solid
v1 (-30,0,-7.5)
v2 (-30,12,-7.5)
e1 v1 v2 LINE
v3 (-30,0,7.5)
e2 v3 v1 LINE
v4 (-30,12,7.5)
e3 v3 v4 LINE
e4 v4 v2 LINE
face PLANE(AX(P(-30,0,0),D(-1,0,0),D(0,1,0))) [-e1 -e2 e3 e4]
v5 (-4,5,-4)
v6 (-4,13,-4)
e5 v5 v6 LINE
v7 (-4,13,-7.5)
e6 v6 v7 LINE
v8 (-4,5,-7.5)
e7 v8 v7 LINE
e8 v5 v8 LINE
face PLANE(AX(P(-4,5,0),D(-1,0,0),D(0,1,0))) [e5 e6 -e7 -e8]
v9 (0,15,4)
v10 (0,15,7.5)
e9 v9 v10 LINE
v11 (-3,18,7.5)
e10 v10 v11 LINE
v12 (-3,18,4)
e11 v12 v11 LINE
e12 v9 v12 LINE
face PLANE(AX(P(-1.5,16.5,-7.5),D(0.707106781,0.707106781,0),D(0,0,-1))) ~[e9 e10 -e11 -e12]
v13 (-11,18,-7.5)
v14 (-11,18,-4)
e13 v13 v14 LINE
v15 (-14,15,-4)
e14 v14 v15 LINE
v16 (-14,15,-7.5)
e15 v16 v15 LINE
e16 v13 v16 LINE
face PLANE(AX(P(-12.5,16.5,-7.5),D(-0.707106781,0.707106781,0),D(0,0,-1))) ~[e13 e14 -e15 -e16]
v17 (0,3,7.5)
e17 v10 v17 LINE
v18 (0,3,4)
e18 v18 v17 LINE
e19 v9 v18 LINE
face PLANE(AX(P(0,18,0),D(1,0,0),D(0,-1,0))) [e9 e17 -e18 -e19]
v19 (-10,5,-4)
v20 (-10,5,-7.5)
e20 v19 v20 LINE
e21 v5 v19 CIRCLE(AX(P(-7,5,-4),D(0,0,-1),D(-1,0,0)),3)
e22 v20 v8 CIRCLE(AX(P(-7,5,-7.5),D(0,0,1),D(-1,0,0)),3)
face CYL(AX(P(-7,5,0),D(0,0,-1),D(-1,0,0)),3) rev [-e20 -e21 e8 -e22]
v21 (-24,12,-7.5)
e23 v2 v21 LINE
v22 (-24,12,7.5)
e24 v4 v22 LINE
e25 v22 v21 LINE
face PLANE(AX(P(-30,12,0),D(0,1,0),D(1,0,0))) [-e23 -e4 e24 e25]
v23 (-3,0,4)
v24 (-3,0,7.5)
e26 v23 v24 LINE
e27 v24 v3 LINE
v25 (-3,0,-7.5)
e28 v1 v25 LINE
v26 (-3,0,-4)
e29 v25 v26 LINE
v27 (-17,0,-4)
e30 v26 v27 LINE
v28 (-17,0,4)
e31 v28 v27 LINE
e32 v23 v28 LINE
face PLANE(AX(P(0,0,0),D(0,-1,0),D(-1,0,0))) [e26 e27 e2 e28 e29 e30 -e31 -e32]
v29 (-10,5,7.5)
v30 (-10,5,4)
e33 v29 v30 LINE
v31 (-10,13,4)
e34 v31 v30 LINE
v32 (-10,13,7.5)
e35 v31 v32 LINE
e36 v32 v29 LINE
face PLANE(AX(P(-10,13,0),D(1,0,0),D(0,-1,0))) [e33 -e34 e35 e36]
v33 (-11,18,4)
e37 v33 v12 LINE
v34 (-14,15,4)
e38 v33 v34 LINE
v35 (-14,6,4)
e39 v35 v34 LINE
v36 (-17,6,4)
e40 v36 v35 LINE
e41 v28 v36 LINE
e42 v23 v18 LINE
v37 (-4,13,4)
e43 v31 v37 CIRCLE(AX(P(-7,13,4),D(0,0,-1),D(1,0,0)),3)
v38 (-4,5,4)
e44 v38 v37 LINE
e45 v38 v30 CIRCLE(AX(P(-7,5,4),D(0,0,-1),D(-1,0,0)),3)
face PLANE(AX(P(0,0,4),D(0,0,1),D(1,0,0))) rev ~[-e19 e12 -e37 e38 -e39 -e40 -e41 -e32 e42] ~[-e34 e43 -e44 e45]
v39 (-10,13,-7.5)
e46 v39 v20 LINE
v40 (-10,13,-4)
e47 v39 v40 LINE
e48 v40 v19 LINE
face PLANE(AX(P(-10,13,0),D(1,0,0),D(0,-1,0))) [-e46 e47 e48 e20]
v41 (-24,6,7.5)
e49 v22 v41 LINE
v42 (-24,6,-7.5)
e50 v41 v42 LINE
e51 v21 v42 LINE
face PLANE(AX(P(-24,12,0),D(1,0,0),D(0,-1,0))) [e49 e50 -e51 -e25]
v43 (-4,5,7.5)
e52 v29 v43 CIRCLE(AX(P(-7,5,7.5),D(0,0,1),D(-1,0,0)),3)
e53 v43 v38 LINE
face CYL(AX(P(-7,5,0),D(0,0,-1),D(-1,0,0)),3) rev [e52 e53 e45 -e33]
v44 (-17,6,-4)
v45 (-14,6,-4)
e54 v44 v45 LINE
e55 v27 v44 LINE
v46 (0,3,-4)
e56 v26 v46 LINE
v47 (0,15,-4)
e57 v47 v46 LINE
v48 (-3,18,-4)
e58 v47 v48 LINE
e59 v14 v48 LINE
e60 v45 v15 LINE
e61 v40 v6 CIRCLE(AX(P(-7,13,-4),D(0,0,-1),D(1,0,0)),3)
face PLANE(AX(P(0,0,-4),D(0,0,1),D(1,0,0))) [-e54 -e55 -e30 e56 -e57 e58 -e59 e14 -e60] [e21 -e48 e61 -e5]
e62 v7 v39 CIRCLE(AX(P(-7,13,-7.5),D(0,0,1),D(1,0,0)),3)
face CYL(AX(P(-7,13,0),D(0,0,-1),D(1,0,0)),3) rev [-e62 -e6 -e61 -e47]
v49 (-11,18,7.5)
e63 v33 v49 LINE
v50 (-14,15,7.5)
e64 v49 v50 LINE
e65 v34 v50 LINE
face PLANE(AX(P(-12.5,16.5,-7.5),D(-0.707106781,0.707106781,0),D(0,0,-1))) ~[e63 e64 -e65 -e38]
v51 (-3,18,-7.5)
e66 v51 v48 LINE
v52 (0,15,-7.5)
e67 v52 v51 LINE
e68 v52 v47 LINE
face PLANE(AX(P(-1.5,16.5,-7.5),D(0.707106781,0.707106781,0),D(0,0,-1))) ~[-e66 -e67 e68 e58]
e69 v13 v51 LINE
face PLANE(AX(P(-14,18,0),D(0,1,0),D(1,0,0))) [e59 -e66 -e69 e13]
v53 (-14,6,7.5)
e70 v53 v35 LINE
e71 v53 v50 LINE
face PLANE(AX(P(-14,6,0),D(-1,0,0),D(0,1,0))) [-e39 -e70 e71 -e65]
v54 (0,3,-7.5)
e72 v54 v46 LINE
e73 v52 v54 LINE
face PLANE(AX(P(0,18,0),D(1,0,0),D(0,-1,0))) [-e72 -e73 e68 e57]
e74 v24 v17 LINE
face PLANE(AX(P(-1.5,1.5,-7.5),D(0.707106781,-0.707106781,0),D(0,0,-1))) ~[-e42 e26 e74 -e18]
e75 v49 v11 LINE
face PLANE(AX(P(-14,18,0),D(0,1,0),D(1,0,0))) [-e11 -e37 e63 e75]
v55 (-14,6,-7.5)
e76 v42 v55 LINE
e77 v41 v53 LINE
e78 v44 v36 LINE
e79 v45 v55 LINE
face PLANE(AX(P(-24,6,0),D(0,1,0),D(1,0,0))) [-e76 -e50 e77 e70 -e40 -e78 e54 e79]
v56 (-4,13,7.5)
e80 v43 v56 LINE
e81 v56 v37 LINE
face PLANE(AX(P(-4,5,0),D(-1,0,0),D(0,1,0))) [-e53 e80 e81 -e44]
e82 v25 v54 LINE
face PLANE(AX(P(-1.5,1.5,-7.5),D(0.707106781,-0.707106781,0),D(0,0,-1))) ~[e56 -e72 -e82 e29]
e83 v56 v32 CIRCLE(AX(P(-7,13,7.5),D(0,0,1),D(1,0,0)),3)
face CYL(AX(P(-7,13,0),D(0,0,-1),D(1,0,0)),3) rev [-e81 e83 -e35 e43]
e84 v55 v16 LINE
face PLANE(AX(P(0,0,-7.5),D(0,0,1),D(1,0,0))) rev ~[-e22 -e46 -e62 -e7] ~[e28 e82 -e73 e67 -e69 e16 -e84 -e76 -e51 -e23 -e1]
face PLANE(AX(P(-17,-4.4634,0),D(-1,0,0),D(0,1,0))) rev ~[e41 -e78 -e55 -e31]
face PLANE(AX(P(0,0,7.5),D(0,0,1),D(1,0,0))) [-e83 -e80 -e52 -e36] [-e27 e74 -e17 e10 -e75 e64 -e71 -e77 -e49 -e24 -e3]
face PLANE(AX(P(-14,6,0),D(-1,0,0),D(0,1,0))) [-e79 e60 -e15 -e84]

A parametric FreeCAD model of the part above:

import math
import FreeCAD as App
import Part
import Sketcher

V = App.Vector
Q = App.Units.Quantity


def edges_at(feature, points):
    """Names of the edges that pass closest to the given points."""
    edges = feature.Shape.Edges
    near = lambda p: min(range(len(edges)), key=lambda i: edges[i].distToShape(Part.Vertex(*p))[0])
    return sorted({f"Edge{near(p) + 1}" for p in points})


def add_polygon(sketch, points):
    """Adds a closed chain of lines whose ends are joined by coincident constraints."""
    first, n = sketch.GeometryCount, len(points)
    for a, b in zip(points, points[1:] + points[:1]):
        sketch.addGeometry(Part.LineSegment(App.Vector(*a, 0), App.Vector(*b, 0)), False)
    for i in range(n):
        sketch.addConstraint(Sketcher.Constraint("Coincident", first + i, 2, first + (i + 1) % n, 1))

doc = App.newDocument("Part")
body = doc.addObject("PartDesign::Body", "Body")

sketch1 = body.newObject("Sketcher::SketchObject", "Sketch")
sketch1.AttachmentSupport = (doc.getObject("XY_Plane"), [""])
sketch1.MapMode = "FlatFace"
add_polygon(sketch1, [(-30, 0), (0, 0), (0, 18), (-14, 18), (-14, 6), (-24, 6), (-24, 12), (-30, 12)])
sketch1.addGeometry(Part.LineSegment(V(-10, 5, 0), V(-10, 13, 0)), False)
sketch1.addGeometry(Part.ArcOfCircle(Part.Circle(V(-7, 13, 0), V(0, 0, 1), 3), math.radians(0), math.radians(180)), False)
sketch1.addGeometry(Part.LineSegment(V(-4, 13, 0), V(-4, 5, 0)), False)
sketch1.addGeometry(Part.ArcOfCircle(Part.Circle(V(-7, 5, 0), V(0, 0, 1), 3), math.radians(180), math.radians(360)), False)
sketch1.addConstraint([
    Sketcher.Constraint("Tangent", 8, 2, 9, 2),
    Sketcher.Constraint("Tangent", 9, 1, 10, 1),
    Sketcher.Constraint("Tangent", 10, 2, 11, 2),
    Sketcher.Constraint("Tangent", 11, 1, 8, 1),
    Sketcher.Constraint("Horizontal", 0),
    Sketcher.Constraint("Vertical", 1),
    Sketcher.Constraint("Horizontal", 2),
    Sketcher.Constraint("Vertical", 3),
    Sketcher.Constraint("Horizontal", 4),
    Sketcher.Constraint("Vertical", 5),
    Sketcher.Constraint("Horizontal", 6),
    Sketcher.Constraint("Vertical", 7),
    Sketcher.Constraint("Vertical", 8),
    Sketcher.Constraint("Vertical", 10),
    Sketcher.Constraint("Coincident", 0, 2, -1, 1),
    Sketcher.Constraint("Equal", 6, 5),
    Sketcher.Constraint("Equal", 3, 7),
    Sketcher.Constraint("Radius", 9, Q("3 mm")),
    Sketcher.Constraint("DistanceX", 0, 1, 0, 2, Q("30 mm")),
    Sketcher.Constraint("DistanceX", 2, 2, 2, 1, Q("14 mm")),
    Sketcher.Constraint("DistanceX", 4, 2, 4, 1, Q("10 mm")),
    Sketcher.Constraint("DistanceY", 1, 1, 1, 2, Q("18 mm")),
    Sketcher.Constraint("DistanceY", 8, 1, 8, 2, Q("8 mm")),
    Sketcher.Constraint("DistanceX", 9, 3, -1, 1, Q("7 mm")),
    Sketcher.Constraint("DistanceY", -1, 1, 11, 3, Q("5 mm")),
])
pad1 = body.newObject("PartDesign::Pad", "Pad")
pad1.Profile = sketch1
pad1.Length = 15
pad1.Midplane = True
doc.recompute()

chamfer = body.newObject("PartDesign::Chamfer", "Chamfer")
chamfer.Base = (pad1, edges_at(pad1, [(-14, 18, 0), (0, 18, 0), (0, 0, 0)]))
chamfer.Size = 3

sketch2 = body.newObject("Sketcher::SketchObject", "Sketch001")
sketch2.AttachmentSupport = (doc.getObject("XY_Plane"), [""])
sketch2.MapMode = "FlatFace"
add_polygon(sketch2, [(7.8455, 20.9368), (-17, 20.9368), (-17, -4.4634), (7.8455, -4.4634)])
sketch2.addConstraint([
    Sketcher.Constraint("Horizontal", 0),
    Sketcher.Constraint("Vertical", 1),
    Sketcher.Constraint("Horizontal", 2),
    Sketcher.Constraint("Vertical", 3),
    Sketcher.Constraint("DistanceX", 0, 2, -1, 1, Q("17 mm")),
    Sketcher.Constraint("DistanceX", 0, 2, 0, 1, Q("24.8455 mm")),
    Sketcher.Constraint("DistanceY", 1, 2, 1, 1, Q("25.4002 mm")),
    Sketcher.Constraint("DistanceY", -1, 1, 0, 2, Q("20.9368 mm")),
])
pocket1 = body.newObject("PartDesign::Pocket", "Pocket")
pocket1.Profile = sketch2
pocket1.Length = 8
pocket1.Midplane = True

doc.recompute()
